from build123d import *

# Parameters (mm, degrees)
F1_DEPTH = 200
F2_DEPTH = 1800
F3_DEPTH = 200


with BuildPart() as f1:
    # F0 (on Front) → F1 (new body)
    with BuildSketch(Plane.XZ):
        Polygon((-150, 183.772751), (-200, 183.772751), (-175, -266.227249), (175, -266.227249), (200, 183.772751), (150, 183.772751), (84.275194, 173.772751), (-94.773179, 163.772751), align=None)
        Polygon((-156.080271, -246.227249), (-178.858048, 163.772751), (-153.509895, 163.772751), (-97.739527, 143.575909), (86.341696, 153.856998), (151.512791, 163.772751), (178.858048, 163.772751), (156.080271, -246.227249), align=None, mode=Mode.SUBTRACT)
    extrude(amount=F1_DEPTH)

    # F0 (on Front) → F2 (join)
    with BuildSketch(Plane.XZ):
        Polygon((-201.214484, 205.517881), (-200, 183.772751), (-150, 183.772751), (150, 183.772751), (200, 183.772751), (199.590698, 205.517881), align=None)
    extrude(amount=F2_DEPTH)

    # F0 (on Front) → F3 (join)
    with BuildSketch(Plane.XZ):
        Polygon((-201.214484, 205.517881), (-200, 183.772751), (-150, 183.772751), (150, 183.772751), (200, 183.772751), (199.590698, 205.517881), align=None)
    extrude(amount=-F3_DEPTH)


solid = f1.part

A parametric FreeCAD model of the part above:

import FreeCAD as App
import Part
import Sketcher
from FreeCAD import Vector
Q = App.Units.Quantity


def add_polygon(sketch, points):
    """Adds a closed chain of lines whose ends are joined by coincident constraints."""
    first, n = sketch.GeometryCount, len(points)
    for a, b in zip(points, points[1:] + points[:1]):
        sketch.addGeometry(Part.LineSegment(App.Vector(*a, 0), App.Vector(*b, 0)), False)
    for i in range(n):
        sketch.addConstraint(Sketcher.Constraint("Coincident", first + i, 2, first + (i + 1) % n, 1))

doc = App.newDocument("Part")
body = doc.addObject("PartDesign::Body", "Body")

sketch1 = doc.addObject("Sketcher::SketchObject", "Sketch")
body.addObject(sketch1)
sketch1.AttachmentSupport = (doc.XZ_Plane, [""])
sketch1.MapMode = "FlatFace"
add_polygon(sketch1, [(-150, 184), (-200, 184), (-175, -266), (175, -266), (200, 184), (150, 184), (84, 174), (-95, 164)])
add_polygon(sketch1, [(156, -246), (-156, -246), (-179, 164), (-154, 164), (-98, 144), (86, 154), (152, 164), (179, 164)])
sketch1.addConstraint(Sketcher.Constraint("Horizontal", 0))
sketch1.addConstraint(Sketcher.Constraint("Horizontal", 2))
sketch1.addConstraint(Sketcher.Constraint("Horizontal", 4))
sketch1.addConstraint(Sketcher.Constraint("Horizontal", 8))
sketch1.addConstraint(Sketcher.Constraint("Horizontal", 10))
sketch1.addConstraint(Sketcher.Constraint("Horizontal", 14))
sketch1.addConstraint(Sketcher.Constraint("Symmetric", 0, 2, 3, 2, -2))
sketch1.addConstraint(Sketcher.Constraint("Symmetric", 9, 2, 14, 2, -2))
sketch1.addConstraint(Sketcher.Constraint("Parallel", 1, 9))
sketch1.addConstraint(Sketcher.Constraint("Parallel", 7, 11))
sketch1.addConstraint(Sketcher.Constraint("Parallel", 6, 12))
sketch1.addConstraint(Sketcher.Constraint("Parallel", 5, 13))
sketch1.addConstraint(Sketcher.Constraint("Parallel", 3, 15))
sketch1.addConstraint(Sketcher.Constraint("Horizontal", 6, 2, 9, 2))
sketch1.addConstraint(Sketcher.Constraint("Equal", 0, 4))
sketch1.addConstraint(Sketcher.Constraint("Equal", 1, 3))
sketch1.addConstraint(Sketcher.Constraint("DistanceX", 0, 2, 0, 1, Q("50 mm")))
sketch1.addConstraint(Sketcher.Constraint("DistanceX", 2, 1, 2, 2, Q("350 mm")))
sketch1.addConstraint(Sketcher.Constraint("DistanceX", 0, 2, -1, 1, Q("200 mm")))
sketch1.addConstraint(Sketcher.Constraint("DistanceY", 1, 2, 0, 2, Q("450 mm")))
sketch1.addConstraint(Sketcher.Constraint("DistanceY", 5, 2, 4, 2, Q("10 mm")))
sketch1.addConstraint(Sketcher.Constraint("DistanceY", 6, 2, 0, 2, Q("20 mm")))
sketch1.addConstraint(Sketcher.Constraint("DistanceY", 1, 2, 8, 2, Q("20 mm")))
sketch1.addConstraint(Sketcher.Constraint("DistanceY", -1, 1, 12, 2, Q("153.856998 mm")))
sketch1.addConstraint(Sketcher.Constraint("Distance", 5, Q("66.481201 mm")))
sketch1.addConstraint(Sketcher.Constraint("DistanceX", 8, 2, 8, 1, Q("312.160542 mm")))
sketch1.addConstraint(Sketcher.Constraint("DistanceX", 5, 2, 12, 2, Q("2.066502 mm")))
sketch1.addConstraint(Sketcher.Constraint("Distance", 6, Q("179.32741 mm")))
sketch1.addConstraint(Sketcher.Constraint("DistanceX", 10, 1, 10, 2, Q("25.348153 mm")))
sketch1.addConstraint(Sketcher.Constraint("DistanceX", 14, 1, 14, 2, Q("27.345257 mm")))
pad1 = doc.addObject("PartDesign::Pad", "Pad")
body.addObject(pad1)
pad1.Profile = sketch1
pad1.Length = 200

sketch2 = doc.addObject("Sketcher::SketchObject", "Sketch001")
body.addObject(sketch2)
sketch2.AttachmentSupport = (doc.XZ_Plane, [""])
sketch2.MapMode = "FlatFace"
add_polygon(sketch2, [(-201, 206), (-200, 184), (200, 184), (200, 206)])
sketch2.addConstraint(Sketcher.Constraint("Horizontal", 1))
sketch2.addConstraint(Sketcher.Constraint("Horizontal", 3))
sketch2.addConstraint(Sketcher.Constraint("DistanceX", 1, 1, 1, 2, Q("400 mm")))
sketch2.addConstraint(Sketcher.Constraint("DistanceX", 0, 2, -1, 1, Q("200 mm")))
sketch2.addConstraint(Sketcher.Constraint("DistanceX", 3, 2, 3, 1, Q("400.805182 mm")))
sketch2.addConstraint(Sketcher.Constraint("DistanceX", -1, 1, 2, 2, Q("199.590698 mm")))
sketch2.addConstraint(Sketcher.Constraint("Distance", 0, Q("21.779019 mm")))
sketch2.addConstraint(Sketcher.Constraint("DistanceY", -1, 1, 0, 2, Q("183.772751 mm")))
pad2 = doc.addObject("PartDesign::Pad", "Pad001")
body.addObject(pad2)
pad2.Profile = sketch2
pad2.Length = 1800

sketch3 = doc.addObject("Sketcher::SketchObject", "Sketch002")
body.addObject(sketch3)
sketch3.AttachmentSupport = (doc.XZ_Plane, [""])
sketch3.MapMode = "FlatFace"
add_polygon(sketch3, [(-201, 206), (-200, 184), (200, 184), (200, 206)])
sketch3.addConstraint(Sketcher.Constraint("Horizontal", 1))
sketch3.addConstraint(Sketcher.Constraint("Horizontal", 3))
sketch3.addConstraint(Sketcher.Constraint("DistanceX", 1, 1, 1, 2, Q("400 mm")))
sketch3.addConstraint(Sketcher.Constraint("DistanceX", 0, 2, -1, 1, Q("200 mm")))
sketch3.addConstraint(Sketcher.Constraint("DistanceX", 3, 2, 3, 1, Q("400.805182 mm")))
sketch3.addConstraint(Sketcher.Constraint("DistanceX", -1, 1, 2, 2, Q("199.590698 mm")))
sketch3.addConstraint(Sketcher.Constraint("Distance", 0, Q("21.779019 mm")))
sketch3.addConstraint(Sketcher.Constraint("DistanceY", -1, 1, 0, 2, Q("183.772751 mm")))
pad3 = doc.addObject("PartDesign::Pad", "Pad002")
body.addObject(pad3)
pad3.Profile = sketch3
pad3.Length = 200
pad3.Reversed = True

doc.recompute()
